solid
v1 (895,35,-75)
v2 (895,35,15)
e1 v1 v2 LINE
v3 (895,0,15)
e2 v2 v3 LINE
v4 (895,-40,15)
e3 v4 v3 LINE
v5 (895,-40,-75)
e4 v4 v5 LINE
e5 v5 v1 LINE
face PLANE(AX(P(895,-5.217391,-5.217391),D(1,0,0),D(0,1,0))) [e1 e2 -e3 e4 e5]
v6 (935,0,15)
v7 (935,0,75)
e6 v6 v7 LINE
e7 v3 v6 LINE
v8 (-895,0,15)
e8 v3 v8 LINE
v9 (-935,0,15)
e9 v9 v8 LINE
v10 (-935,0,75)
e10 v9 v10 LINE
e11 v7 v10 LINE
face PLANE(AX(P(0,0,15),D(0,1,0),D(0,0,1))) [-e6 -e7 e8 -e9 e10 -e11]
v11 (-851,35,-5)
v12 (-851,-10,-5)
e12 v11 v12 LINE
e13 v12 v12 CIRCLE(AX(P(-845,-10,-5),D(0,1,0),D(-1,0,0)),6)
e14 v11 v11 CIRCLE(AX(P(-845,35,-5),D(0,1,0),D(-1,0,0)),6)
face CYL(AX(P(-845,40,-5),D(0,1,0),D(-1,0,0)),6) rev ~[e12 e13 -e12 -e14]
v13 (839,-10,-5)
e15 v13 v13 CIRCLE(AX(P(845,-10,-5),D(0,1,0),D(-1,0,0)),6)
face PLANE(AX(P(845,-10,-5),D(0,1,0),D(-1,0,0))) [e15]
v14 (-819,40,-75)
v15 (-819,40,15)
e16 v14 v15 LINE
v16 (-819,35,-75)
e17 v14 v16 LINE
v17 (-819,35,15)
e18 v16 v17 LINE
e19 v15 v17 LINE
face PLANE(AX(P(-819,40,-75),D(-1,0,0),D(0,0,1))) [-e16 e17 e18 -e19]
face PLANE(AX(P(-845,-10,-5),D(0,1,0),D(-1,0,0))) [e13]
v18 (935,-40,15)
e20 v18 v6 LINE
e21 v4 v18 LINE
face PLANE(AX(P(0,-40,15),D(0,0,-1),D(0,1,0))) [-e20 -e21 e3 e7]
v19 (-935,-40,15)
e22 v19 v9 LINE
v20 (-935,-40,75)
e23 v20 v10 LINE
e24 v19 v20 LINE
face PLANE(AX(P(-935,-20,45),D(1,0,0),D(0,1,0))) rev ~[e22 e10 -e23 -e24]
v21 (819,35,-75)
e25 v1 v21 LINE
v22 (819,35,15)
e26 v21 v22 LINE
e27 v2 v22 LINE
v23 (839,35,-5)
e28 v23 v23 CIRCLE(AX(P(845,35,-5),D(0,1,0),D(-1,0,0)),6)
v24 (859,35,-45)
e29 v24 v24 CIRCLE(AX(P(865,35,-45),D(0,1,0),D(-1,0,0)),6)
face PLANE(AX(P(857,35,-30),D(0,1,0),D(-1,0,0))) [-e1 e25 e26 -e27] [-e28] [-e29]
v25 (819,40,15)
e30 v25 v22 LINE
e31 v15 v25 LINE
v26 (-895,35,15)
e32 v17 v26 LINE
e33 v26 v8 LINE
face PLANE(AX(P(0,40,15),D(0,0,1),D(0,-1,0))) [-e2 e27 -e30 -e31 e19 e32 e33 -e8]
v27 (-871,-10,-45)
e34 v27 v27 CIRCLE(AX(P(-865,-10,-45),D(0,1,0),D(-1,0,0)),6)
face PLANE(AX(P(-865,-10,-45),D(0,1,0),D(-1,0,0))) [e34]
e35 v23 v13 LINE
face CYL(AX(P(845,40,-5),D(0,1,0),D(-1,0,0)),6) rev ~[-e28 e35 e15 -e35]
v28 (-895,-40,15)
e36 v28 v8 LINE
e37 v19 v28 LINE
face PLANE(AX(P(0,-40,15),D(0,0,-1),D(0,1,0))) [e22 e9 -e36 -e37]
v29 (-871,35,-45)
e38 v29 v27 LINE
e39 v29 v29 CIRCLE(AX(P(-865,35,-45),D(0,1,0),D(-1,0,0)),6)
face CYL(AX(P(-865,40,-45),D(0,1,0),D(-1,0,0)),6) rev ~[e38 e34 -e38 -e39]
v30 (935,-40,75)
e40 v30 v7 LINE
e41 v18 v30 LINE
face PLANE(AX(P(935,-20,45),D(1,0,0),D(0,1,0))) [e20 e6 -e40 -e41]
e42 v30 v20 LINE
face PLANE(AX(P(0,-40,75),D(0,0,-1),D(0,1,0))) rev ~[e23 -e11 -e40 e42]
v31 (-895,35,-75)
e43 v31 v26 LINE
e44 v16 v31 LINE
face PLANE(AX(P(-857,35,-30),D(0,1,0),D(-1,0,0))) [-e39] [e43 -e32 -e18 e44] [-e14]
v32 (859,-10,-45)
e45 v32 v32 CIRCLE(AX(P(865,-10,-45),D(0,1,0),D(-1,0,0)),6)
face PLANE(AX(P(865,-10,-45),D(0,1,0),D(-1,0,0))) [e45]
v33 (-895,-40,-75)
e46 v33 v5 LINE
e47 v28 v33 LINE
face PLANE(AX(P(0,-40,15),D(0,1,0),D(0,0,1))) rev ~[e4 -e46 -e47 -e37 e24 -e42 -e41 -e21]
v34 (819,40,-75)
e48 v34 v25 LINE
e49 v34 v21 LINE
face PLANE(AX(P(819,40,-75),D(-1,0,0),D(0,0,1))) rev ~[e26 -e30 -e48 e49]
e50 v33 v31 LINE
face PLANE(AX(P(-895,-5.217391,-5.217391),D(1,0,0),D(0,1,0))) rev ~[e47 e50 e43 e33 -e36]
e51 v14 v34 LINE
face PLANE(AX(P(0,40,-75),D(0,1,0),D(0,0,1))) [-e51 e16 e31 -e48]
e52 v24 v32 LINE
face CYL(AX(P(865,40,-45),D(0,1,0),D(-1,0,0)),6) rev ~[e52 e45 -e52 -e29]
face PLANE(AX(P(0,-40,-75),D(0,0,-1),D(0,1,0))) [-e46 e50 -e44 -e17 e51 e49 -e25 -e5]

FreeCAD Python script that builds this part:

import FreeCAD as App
import Part
import Sketcher
Q = App.Units.Quantity

doc = App.newDocument("Part")
body = doc.addObject("PartDesign::Body", "Body")

# Sketch on YZ plane
sketch1 = body.newObject("Sketcher::SketchObject", "Sketch")
sketch1.AttachmentSupport = (doc.getObject("YZ_Plane"), [""])
sketch1.MapMode = "FlatFace"
sketch1.addGeometry(Part.LineSegment(App.Vector(-40, 75, 0), App.Vector(-40, -75, 0)), False)
sketch1.addGeometry(Part.LineSegment(App.Vector(-40, -75, 0), App.Vector(40, -75, 0)), False)
sketch1.addGeometry(Part.LineSegment(App.Vector(40, -75, 0), App.Vector(40, 15, 0)), False)
sketch1.addGeometry(Part.LineSegment(App.Vector(40, 15, 0), App.Vector(0, 15, 0)), False)
sketch1.addGeometry(Part.LineSegment(App.Vector(0, 15, 0), App.Vector(0, 75, 0)), False)
sketch1.addGeometry(Part.LineSegment(App.Vector(0, 75, 0), App.Vector(-40, 75, 0)), False)
sketch1.addConstraint(Sketcher.Constraint("Coincident", 0, 2, 1, 1))
sketch1.addConstraint(Sketcher.Constraint("Coincident", 1, 2, 2, 1))
sketch1.addConstraint(Sketcher.Constraint("Coincident", 2, 2, 3, 1))
sketch1.addConstraint(Sketcher.Constraint("Coincident", 3, 2, 4, 1))
sketch1.addConstraint(Sketcher.Constraint("Coincident", 4, 2, 5, 1))
sketch1.addConstraint(Sketcher.Constraint("Coincident", 5, 2, 0, 1))
sketch1.addConstraint(Sketcher.Constraint("Vertical", 0))
sketch1.addConstraint(Sketcher.Constraint("Horizontal", 1))
sketch1.addConstraint(Sketcher.Constraint("Vertical", 2))
sketch1.addConstraint(Sketcher.Constraint("Horizontal", 3))
sketch1.addConstraint(Sketcher.Constraint("Vertical", 4))
sketch1.addConstraint(Sketcher.Constraint("Horizontal", 5))
sketch1.addConstraint(Sketcher.Constraint("Symmetric", 1, 2, 5, 2, -1, 1))
sketch1.addConstraint(Sketcher.Constraint("PointOnObject", 3, 2, -2))
sketch1.addConstraint(Sketcher.Constraint("DistanceX", 1, 1, 1, 2, Q("80 mm")))
sketch1.addConstraint(Sketcher.Constraint("DistanceY", 0, 2, 0, 1, Q("150 mm")))
sketch1.addConstraint(Sketcher.Constraint("DistanceY", 2, 1, 2, 2, Q("90 mm")))
pad1 = body.newObject("PartDesign::Pad", "Pad")
pad1.Profile = sketch1
pad1.Length = 1790
pad1.Midplane = True

# Sketch on XZ plane
sketch2 = body.newObject("Sketcher::SketchObject", "Sketch001")
sketch2.AttachmentSupport = (doc.getObject("XZ_Plane"), [""])
sketch2.MapMode = "FlatFace"
sketch2.AttachmentOffset = App.Placement(App.Vector(0, 0, -40), App.Rotation())
sketch2.addGeometry(Part.Circle(App.Vector(865, -45, 0), App.Vector(0, 0, 1), 6), False)
sketch2.addGeometry(Part.Circle(App.Vector(845, -5, 0), App.Vector(0, 0, 1), 6), False)
sketch2.addGeometry(Part.Circle(App.Vector(-845, -5, 0), App.Vector(0, 0, 1), 6), False)
sketch2.addGeometry(Part.Circle(App.Vector(-865, -45, 0), App.Vector(0, 0, 1), 6), False)
sketch2.addConstraint(Sketcher.Constraint("Equal", 0, 1))
sketch2.addConstraint(Sketcher.Constraint("Equal", 1, 2))
sketch2.addConstraint(Sketcher.Constraint("Equal", 2, 3))
sketch2.addConstraint(Sketcher.Constraint("Symmetric", 1, 3, 2, 3, -2))
sketch2.addConstraint(Sketcher.Constraint("Symmetric", 0, 3, 3, 3, -2))
sketch2.addConstraint(Sketcher.Constraint("Diameter", 0, Q("12 mm")))
sketch2.addConstraint(Sketcher.Constraint("DistanceX", -1, 1, 0, 3, Q("865 mm")))
sketch2.addConstraint(Sketcher.Constraint("DistanceY", 0, 3, -1, 1, Q("45 mm")))
sketch2.addConstraint(Sketcher.Constraint("DistanceX", -1, 1, 1, 3, Q("845 mm")))
sketch2.addConstraint(Sketcher.Constraint("DistanceY", 1, 3, -1, 1, Q("5 mm")))
pocket1 = body.newObject("PartDesign::Pocket", "Pocket")
pocket1.Profile = sketch2
pocket1.Length = 50
pocket1.Reversed = True

# Sketch on XZ plane
sketch3 = body.newObject("Sketcher::SketchObject", "Sketch002")
sketch3.AttachmentSupport = (doc.getObject("XZ_Plane"), [""])
sketch3.MapMode = "FlatFace"
sketch3.AttachmentOffset = App.Placement(App.Vector(0, 0, -40), App.Rotation())
sketch3.addGeometry(Part.LineSegment(App.Vector(895, 15, 0), App.Vector(895, -75, 0)), False)
sketch3.addGeometry(Part.LineSegment(App.Vector(895, -75, 0), App.Vector(819, -75, 0)), False)
sketch3.addGeometry(Part.LineSegment(App.Vector(819, -75, 0), App.Vector(819, 15, 0)), False)
sketch3.addGeometry(Part.LineSegment(App.Vector(819, 15, 0), App.Vector(895, 15, 0)), False)
sketch3.addGeometry(Part.LineSegment(App.Vector(-819, 15, 0), App.Vector(-819, -75, 0)), False)
sketch3.addGeometry(Part.LineSegment(App.Vector(-819, -75, 0), App.Vector(-895, -75, 0)), False)
sketch3.addGeometry(Part.LineSegment(App.Vector(-895, -75, 0), App.Vector(-895, 15, 0)), False)
sketch3.addGeometry(Part.LineSegment(App.Vector(-895, 15, 0), App.Vector(-819, 15, 0)), False)
sketch3.addConstraint(Sketcher.Constraint("Coincident", 0, 2, 1, 1))
sketch3.addConstraint(Sketcher.Constraint("Coincident", 1, 2, 2, 1))
sketch3.addConstraint(Sketcher.Constraint("Coincident", 2, 2, 3, 1))
sketch3.addConstraint(Sketcher.Constraint("Coincident", 3, 2, 0, 1))
sketch3.addConstraint(Sketcher.Constraint("Coincident", 4, 2, 5, 1))
sketch3.addConstraint(Sketcher.Constraint("Coincident", 5, 2, 6, 1))
sketch3.addConstraint(Sketcher.Constraint("Coincident", 6, 2, 7, 1))
sketch3.addConstraint(Sketcher.Constraint("Coincident", 7, 2, 4, 1))
sketch3.addConstraint(Sketcher.Constraint("Vertical", 0))
sketch3.addConstraint(Sketcher.Constraint("Horizontal", 1))
sketch3.addConstraint(Sketcher.Constraint("Vertical", 2))
sketch3.addConstraint(Sketcher.Constraint("Horizontal", 3))
sketch3.addConstraint(Sketcher.Constraint("Vertical", 4))
sketch3.addConstraint(Sketcher.Constraint("Horizontal", 5))
sketch3.addConstraint(Sketcher.Constraint("Vertical", 6))
sketch3.addConstraint(Sketcher.Constraint("Horizontal", 7))
sketch3.addConstraint(Sketcher.Constraint("Symmetric", 1, 2, 4, 2, -2))
sketch3.addConstraint(Sketcher.Constraint("Symmetric", 3, 2, 6, 2, -2))
sketch3.addConstraint(Sketcher.Constraint("DistanceX", 1, 2, 1, 1, Q("76 mm")))
sketch3.addConstraint(Sketcher.Constraint("DistanceY", 0, 2, 0, 1, Q("90 mm")))
sketch3.addConstraint(Sketcher.Constraint("DistanceX", -1, 1, 0, 2, Q("895 mm")))
sketch3.addConstraint(Sketcher.Constraint("DistanceY", 0, 2, -1, 1, Q("75 mm")))
pocket2 = body.newObject("PartDesign::Pocket", "Pocket001")
pocket2.Profile = sketch3
pocket2.Length = 5
pocket2.Reversed = True

# Sketch on YZ plane
sketch4 = body.newObject("Sketcher::SketchObject", "Sketch003")
sketch4.AttachmentSupport = (doc.getObject("YZ_Plane"), [""])
sketch4.MapMode = "FlatFace"
sketch4.addGeometry(Part.LineSegment(App.Vector(-40, 75, 0), App.Vector(-40, 15, 0)), False)
sketch4.addGeometry(Part.LineSegment(App.Vector(-40, 15, 0), App.Vector(0, 15, 0)), False)
sketch4.addGeometry(Part.LineSegment(App.Vector(0, 15, 0), App.Vector(0, 75, 0)), False)
sketch4.addGeometry(Part.LineSegment(App.Vector(0, 75, 0), App.Vector(-40, 75, 0)), False)
sketch4.addConstraint(Sketcher.Constraint("Coincident", 0, 2, 1, 1))
sketch4.addConstraint(Sketcher.Constraint("Coincident", 1, 2, 2, 1))
sketch4.addConstraint(Sketcher.Constraint("Coincident", 2, 2, 3, 1))
sketch4.addConstraint(Sketcher.Constraint("Coincident", 3, 2, 0, 1))
sketch4.addConstraint(Sketcher.Constraint("Vertical", 0))
sketch4.addConstraint(Sketcher.Constraint("Horizontal", 1))
sketch4.addConstraint(Sketcher.Constraint("Vertical", 2))
sketch4.addConstraint(Sketcher.Constraint("Horizontal", 3))
sketch4.addConstraint(Sketcher.Constraint("PointOnObject", 1, 2, -2))
sketch4.addConstraint(Sketcher.Constraint("DistanceX", 1, 1, 1, 2, Q("40 mm")))
sketch4.addConstraint(Sketcher.Constraint("DistanceY", 0, 2, 0, 1, Q("60 mm")))
sketch4.addConstraint(Sketcher.Constraint("DistanceY", -1, 1, 0, 2, Q("15 mm")))
pad2 = body.newObject("PartDesign::Pad", "Pad001")
pad2.Profile = sketch4
pad2.Length = 1870
pad2.Midplane = True

doc.recompute()
